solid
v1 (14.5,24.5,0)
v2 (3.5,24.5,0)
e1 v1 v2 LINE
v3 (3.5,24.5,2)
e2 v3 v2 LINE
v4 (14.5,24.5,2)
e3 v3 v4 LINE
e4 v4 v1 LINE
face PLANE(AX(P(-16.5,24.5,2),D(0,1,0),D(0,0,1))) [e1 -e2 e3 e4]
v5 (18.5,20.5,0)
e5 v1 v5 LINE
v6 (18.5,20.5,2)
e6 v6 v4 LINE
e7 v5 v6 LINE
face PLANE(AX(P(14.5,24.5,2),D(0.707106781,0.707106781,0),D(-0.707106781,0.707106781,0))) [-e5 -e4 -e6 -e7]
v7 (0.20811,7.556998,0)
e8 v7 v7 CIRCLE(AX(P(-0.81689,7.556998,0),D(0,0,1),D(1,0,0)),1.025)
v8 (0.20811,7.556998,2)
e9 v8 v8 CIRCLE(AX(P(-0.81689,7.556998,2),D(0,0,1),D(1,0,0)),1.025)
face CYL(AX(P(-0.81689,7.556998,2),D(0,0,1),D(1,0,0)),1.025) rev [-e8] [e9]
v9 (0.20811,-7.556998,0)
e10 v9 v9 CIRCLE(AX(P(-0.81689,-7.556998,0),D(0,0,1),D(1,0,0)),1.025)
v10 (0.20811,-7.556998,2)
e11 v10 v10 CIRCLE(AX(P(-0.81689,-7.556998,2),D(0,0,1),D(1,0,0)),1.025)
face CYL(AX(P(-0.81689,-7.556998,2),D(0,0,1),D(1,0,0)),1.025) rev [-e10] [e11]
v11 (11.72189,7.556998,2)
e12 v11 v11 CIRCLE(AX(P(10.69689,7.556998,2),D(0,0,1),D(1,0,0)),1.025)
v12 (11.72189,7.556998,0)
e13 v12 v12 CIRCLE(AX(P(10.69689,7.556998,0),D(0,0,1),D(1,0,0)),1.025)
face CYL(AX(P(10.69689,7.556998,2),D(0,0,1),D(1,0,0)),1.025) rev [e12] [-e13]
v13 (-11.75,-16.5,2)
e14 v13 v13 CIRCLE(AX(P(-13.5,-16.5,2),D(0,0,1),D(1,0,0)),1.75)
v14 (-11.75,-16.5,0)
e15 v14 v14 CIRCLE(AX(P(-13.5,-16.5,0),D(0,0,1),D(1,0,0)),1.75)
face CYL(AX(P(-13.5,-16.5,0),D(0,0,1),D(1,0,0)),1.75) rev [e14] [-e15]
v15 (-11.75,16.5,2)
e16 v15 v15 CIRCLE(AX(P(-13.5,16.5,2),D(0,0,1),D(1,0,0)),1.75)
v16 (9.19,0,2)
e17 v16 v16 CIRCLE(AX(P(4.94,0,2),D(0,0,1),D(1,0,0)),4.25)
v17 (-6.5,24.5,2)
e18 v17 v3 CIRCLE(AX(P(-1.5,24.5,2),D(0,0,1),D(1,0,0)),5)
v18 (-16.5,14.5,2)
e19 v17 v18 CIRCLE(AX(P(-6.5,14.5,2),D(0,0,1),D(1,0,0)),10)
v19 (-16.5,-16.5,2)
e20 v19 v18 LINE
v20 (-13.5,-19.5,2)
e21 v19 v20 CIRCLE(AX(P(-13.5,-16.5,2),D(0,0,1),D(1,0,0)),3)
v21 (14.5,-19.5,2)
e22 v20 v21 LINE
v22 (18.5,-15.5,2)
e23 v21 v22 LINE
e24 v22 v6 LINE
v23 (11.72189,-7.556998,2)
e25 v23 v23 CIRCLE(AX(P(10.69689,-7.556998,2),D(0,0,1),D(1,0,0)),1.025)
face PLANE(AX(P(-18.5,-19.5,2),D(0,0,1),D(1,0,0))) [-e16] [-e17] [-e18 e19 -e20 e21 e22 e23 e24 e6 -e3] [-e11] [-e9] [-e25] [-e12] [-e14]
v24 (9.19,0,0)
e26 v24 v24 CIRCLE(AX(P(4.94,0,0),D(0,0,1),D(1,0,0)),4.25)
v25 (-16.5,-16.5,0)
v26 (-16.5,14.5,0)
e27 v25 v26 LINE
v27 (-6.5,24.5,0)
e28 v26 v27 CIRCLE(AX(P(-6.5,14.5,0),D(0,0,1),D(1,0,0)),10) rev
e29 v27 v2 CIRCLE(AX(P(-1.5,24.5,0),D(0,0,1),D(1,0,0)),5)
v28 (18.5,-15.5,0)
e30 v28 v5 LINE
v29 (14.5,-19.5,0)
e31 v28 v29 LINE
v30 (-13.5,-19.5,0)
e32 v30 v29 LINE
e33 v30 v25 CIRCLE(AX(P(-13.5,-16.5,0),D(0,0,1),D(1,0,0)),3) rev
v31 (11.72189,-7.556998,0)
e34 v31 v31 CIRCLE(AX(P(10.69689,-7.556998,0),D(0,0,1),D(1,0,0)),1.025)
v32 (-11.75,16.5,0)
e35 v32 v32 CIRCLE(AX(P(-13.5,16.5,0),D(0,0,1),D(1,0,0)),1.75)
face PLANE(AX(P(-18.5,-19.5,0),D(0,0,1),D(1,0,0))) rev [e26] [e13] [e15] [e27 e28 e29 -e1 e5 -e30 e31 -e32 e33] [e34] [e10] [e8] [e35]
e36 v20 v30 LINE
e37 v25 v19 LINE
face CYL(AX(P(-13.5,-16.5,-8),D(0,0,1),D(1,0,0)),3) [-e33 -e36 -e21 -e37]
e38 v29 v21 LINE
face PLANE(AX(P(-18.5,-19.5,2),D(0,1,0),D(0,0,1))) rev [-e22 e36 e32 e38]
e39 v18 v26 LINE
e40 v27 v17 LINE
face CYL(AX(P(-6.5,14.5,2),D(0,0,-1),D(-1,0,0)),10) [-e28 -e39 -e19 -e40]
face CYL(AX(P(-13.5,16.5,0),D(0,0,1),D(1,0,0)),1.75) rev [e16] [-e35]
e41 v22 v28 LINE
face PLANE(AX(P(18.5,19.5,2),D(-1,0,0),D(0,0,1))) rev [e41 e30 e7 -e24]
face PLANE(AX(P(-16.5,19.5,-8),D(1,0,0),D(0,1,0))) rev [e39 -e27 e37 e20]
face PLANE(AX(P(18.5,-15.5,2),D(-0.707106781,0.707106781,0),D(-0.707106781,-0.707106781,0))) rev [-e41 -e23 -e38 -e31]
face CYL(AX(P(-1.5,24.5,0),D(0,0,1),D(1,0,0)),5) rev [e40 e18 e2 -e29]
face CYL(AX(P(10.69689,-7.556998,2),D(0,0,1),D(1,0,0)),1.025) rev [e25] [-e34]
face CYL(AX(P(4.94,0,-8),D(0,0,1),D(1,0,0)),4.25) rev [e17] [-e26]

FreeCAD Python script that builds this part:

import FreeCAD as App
import Part
import Sketcher
Q = App.Units.Quantity


def edges_at(feature, points):
    """Names of the edges that pass closest to the given points."""
    edges = feature.Shape.Edges
    near = lambda p: min(range(len(edges)), key=lambda i: edges[i].distToShape(Part.Vertex(*p))[0])
    return sorted({f"Edge{near(p) + 1}" for p in points})

doc = App.newDocument("Part")
params = doc.addObject("Spreadsheet::Sheet", "Params")
for row, (alias, value) in enumerate([
    ("sketch1_width", "37 mm"),
    ("sketch1_height", "39 mm"),
    ("pad1_length", "2 mm"),
    ("sketch2_diameter", "3.5 mm"),
    ("pocket1_length", "2 mm"),
    ("chamfer_size", "1 mm"),
    ("sketch3_diameter", "8.5 mm"),
    ("pocket2_length", "10 mm"),
    ("sketch4_width", "2 mm"),
    ("sketch4_height", "39 mm"),
    ("pocket3_length", "10 mm"),
    ("fillet_radius", "3 mm"),
    ("sketch5_diameter", "2.05 mm"),
    ("hole_diameter", "2.05 mm"),
    ("hole_depth", "7.25 mm"),
    ("chamfer2_size", "4 mm"),
    ("sketch6_width", "35 mm"),
    ("sketch6_height", "2 mm"),
    ("pad2_length", "5 mm"),
    ("chamfer3_size", "4 mm"),
    ("fillet2_radius", "10 mm"),
    ("sketch7_diameter", "10 mm"),
], start=1):
    params.set(f"A{row}", alias)
    params.set(f"B{row}", "=" + value)
    params.setAlias(f"B{row}", alias)

body = doc.addObject("PartDesign::Body", "Body")

# Sketch on XY plane
sketch1 = doc.addObject("Sketcher::SketchObject", "Sketch")
body.addObject(sketch1)
sketch1.AttachmentSupport = (doc.XY_Plane, [""])
sketch1.MapMode = "FlatFace"
sketch1.addGeometry([
    Part.LineSegment(App.Vector(-18, 20, 0), App.Vector(-18, -20, 0)),
    Part.LineSegment(App.Vector(-18, -20, 0), App.Vector(18, -20, 0)),
    Part.LineSegment(App.Vector(18, -20, 0), App.Vector(18, 20, 0)),
    Part.LineSegment(App.Vector(18, 20, 0), App.Vector(-18, 20, 0)),
], False)
sketch1.addConstraint([
    Sketcher.Constraint("Coincident", 0, 2, 1, 1),
    Sketcher.Constraint("Coincident", 1, 2, 2, 1),
    Sketcher.Constraint("Coincident", 2, 2, 3, 1),
    Sketcher.Constraint("Coincident", 3, 2, 0, 1),
    Sketcher.Constraint("Vertical", 0),
    Sketcher.Constraint("Horizontal", 1),
    Sketcher.Constraint("Vertical", 2),
    Sketcher.Constraint("Horizontal", 3),
    Sketcher.Constraint("Symmetric", 0, 2, 2, 2, -1, 1),
    Sketcher.Constraint("DistanceX", 1, 1, 1, 2, Q("37 mm")),
    Sketcher.Constraint("DistanceY", 0, 2, 0, 1, Q("39 mm")),
])
sketch1.setExpression("Constraints[9]", "Params.sketch1_width")
sketch1.setExpression("Constraints[10]", "Params.sketch1_height")
pad1 = doc.addObject("PartDesign::Pad", "Pad")
body.addObject(pad1)
pad1.Profile = sketch1
pad1.setExpression("Length", "Params.pad1_length")

# Sketch on XY plane
sketch2 = doc.addObject("Sketcher::SketchObject", "Sketch001")
body.addObject(sketch2)
sketch2.AttachmentSupport = (doc.XY_Plane, [""])
sketch2.MapMode = "FlatFace"
sketch2.AttachmentOffset = App.Placement(App.Vector(0, 0, 2), App.Rotation())
sketch2.addGeometry([
    Part.Circle(App.Vector(-13.5, 16.5, 0), App.Vector(0, 0, 1), 1.8),
    Part.Circle(App.Vector(-13.5, -16.5, 0), App.Vector(0, 0, 1), 1.8),
], False)
sketch2.addConstraint([
    Sketcher.Constraint("Equal", 0, 1),
    Sketcher.Constraint("Symmetric", 0, 3, 1, 3, -1),
    Sketcher.Constraint("Diameter", 0, Q("3.5 mm")),
    Sketcher.Constraint("DistanceY", 1, 3, 0, 3, Q("33 mm")),
    Sketcher.Constraint("DistanceX", 0, 3, -1, 1, Q("13.5 mm")),
])
sketch2.setExpression("Constraints[2]", "Params.sketch2_diameter")
pocket1 = doc.addObject("PartDesign::Pocket", "Pocket")
body.addObject(pocket1)
pocket1.Profile = sketch2
pocket1.setExpression("Length", "Params.pocket1_length")
doc.recompute()

chamfer = doc.addObject("PartDesign::Chamfer", "Chamfer")
body.addObject(chamfer)
chamfer.Base = (pocket1, edges_at(pocket1, [(-18.5, 19.5, 1), (-18.5, -19.5, 1)]))
chamfer.setExpression("Size", "Params.chamfer_size")

# Sketch on XY plane
sketch3 = doc.addObject("Sketcher::SketchObject", "Sketch002")
body.addObject(sketch3)
sketch3.AttachmentSupport = (doc.XY_Plane, [""])
sketch3.MapMode = "FlatFace"
sketch3.AttachmentOffset = App.Placement(App.Vector(0, 0, 2), App.Rotation())
sketch3.addGeometry(Part.Circle(App.Vector(4.9, 0, 0), App.Vector(0, 0, 1), 4.2), False)
sketch3.addConstraint([
    Sketcher.Constraint("PointOnObject", 0, 3, -1),
    Sketcher.Constraint("Diameter", 0, Q("8.5 mm")),
    Sketcher.Constraint("DistanceX", -1, 1, 0, 3, Q("4.94 mm")),
])
sketch3.setExpression("Constraints[1]", "Params.sketch3_diameter")
pocket2 = doc.addObject("PartDesign::Pocket", "Pocket001")
body.addObject(pocket2)
pocket2.Profile = sketch3
pocket2.setExpression("Length", "Params.pocket2_length")

# Sketch on XY plane
sketch4 = doc.addObject("Sketcher::SketchObject", "Sketch003")
body.addObject(sketch4)
sketch4.AttachmentSupport = (doc.XY_Plane, [""])
sketch4.MapMode = "FlatFace"
sketch4.AttachmentOffset = App.Placement(App.Vector(0, 0, 2), App.Rotation())
sketch4.addGeometry([
    Part.LineSegment(App.Vector(-18.5, 19.5, 0), App.Vector(-18.5, -19.5, 0)),
    Part.LineSegment(App.Vector(-18.5, -19.5, 0), App.Vector(-16.5, -19.5, 0)),
    Part.LineSegment(App.Vector(-16.5, -19.5, 0), App.Vector(-16.5, 19.5, 0)),
    Part.LineSegment(App.Vector(-16.5, 19.5, 0), App.Vector(-18.5, 19.5, 0)),
], False)
sketch4.addConstraint([
    Sketcher.Constraint("Coincident", 0, 2, 1, 1),
    Sketcher.Constraint("Coincident", 1, 2, 2, 1),
    Sketcher.Constraint("Coincident", 2, 2, 3, 1),
    Sketcher.Constraint("Coincident", 3, 2, 0, 1),
    Sketcher.Constraint("Vertical", 0),
    Sketcher.Constraint("Horizontal", 1),
    Sketcher.Constraint("Vertical", 2),
    Sketcher.Constraint("Horizontal", 3),
    Sketcher.Constraint("DistanceX", 1, 1, 1, 2, Q("2 mm")),
    Sketcher.Constraint("DistanceY", 0, 2, 0, 1, Q("39 mm")),
    Sketcher.Constraint("DistanceX", 0, 2, -1, 1, Q("18.5 mm")),
    Sketcher.Constraint("DistanceY", 0, 2, -1, 1, Q("19.5 mm")),
])
sketch4.setExpression("Constraints[8]", "Params.sketch4_width")
sketch4.setExpression("Constraints[9]", "Params.sketch4_height")
pocket3 = doc.addObject("PartDesign::Pocket", "Pocket002")
body.addObject(pocket3)
pocket3.Profile = sketch4
pocket3.setExpression("Length", "Params.pocket3_length")
doc.recompute()

fillet = doc.addObject("PartDesign::Fillet", "Fillet")
body.addObject(fillet)
fillet.Base = (pocket3, edges_at(pocket3, [(-16.5, -19.5, 1)]))
fillet.setExpression("Radius", "Params.fillet_radius")

# Sketch on XY plane
sketch5 = doc.addObject("Sketcher::SketchObject", "Sketch004")
body.addObject(sketch5)
sketch5.AttachmentSupport = (doc.XY_Plane, [""])
sketch5.MapMode = "FlatFace"
sketch5.AttachmentOffset = App.Placement(App.Vector(0, 0, 2), App.Rotation())
sketch5.addGeometry([
    Part.Circle(App.Vector(-0.8, -7.6, 0), App.Vector(0, 0, 1), 1),
    Part.Circle(App.Vector(10.7, 7.6, 0), App.Vector(0, 0, 1), 1),
    Part.Circle(App.Vector(-0.8, 7.6, 0), App.Vector(0, 0, 1), 1),
    Part.Circle(App.Vector(10.7, -7.6, 0), App.Vector(0, 0, 1), 1),
], False)
sketch5.addConstraint([
    Sketcher.Constraint("Equal", 0, 1),
    Sketcher.Constraint("Equal", 1, 2),
    Sketcher.Constraint("Equal", 2, 3),
    Sketcher.Constraint("Symmetric", 0, 3, 2, 3, -1),
    Sketcher.Constraint("Symmetric", 1, 3, 3, 3, -1),
    Sketcher.Constraint("Horizontal", 1, 3, 2, 3),
    Sketcher.Constraint("Diameter", 0, Q("2.05 mm")),
    Sketcher.Constraint("DistanceY", 0, 3, -1, 1, Q("7.556998 mm")),
    Sketcher.Constraint("DistanceX", 0, 3, -1, 1, Q("0.81689 mm")),
    Sketcher.Constraint("DistanceX", -1, 1, 1, 3, Q("10.69689 mm")),
])
sketch5.setExpression("Constraints[6]", "Params.sketch5_diameter")
doc.recompute()
hole = doc.addObject("PartDesign::Hole", "Hole")
body.addObject(hole)
hole.Profile = sketch5
hole.ThreadType = "None"
hole.setExpression("Diameter", "Params.hole_diameter")
hole.DepthType = "Dimension"
hole.setExpression("Depth", "Params.hole_depth")
hole.DrillPoint = "Angled"
hole.DrillPointAngle = 118
doc.recompute()

chamfer2 = doc.addObject("PartDesign::Chamfer", "Chamfer001")
body.addObject(chamfer2)
chamfer2.Base = (hole, edges_at(hole, [(18.5, -19.5, 1)]))
chamfer2.setExpression("Size", "Params.chamfer2_size")

# Sketch on XZ plane
sketch6 = doc.addObject("Sketcher::SketchObject", "Sketch005")
body.addObject(sketch6)
sketch6.AttachmentSupport = (doc.XZ_Plane, [""])
sketch6.MapMode = "FlatFace"
sketch6.AttachmentOffset = App.Placement(App.Vector(0, 0, -19.5), App.Rotation())
sketch6.addGeometry([
    Part.LineSegment(App.Vector(-16.5, 0, 0), App.Vector(-16.5, 2, 0)),
    Part.LineSegment(App.Vector(-16.5, 2, 0), App.Vector(18.5, 2, 0)),
    Part.LineSegment(App.Vector(18.5, 2, 0), App.Vector(18.5, 0, 0)),
    Part.LineSegment(App.Vector(18.5, 0, 0), App.Vector(-16.5, 0, 0)),
], False)
sketch6.addConstraint([
    Sketcher.Constraint("Coincident", 0, 2, 1, 1),
    Sketcher.Constraint("Coincident", 1, 2, 2, 1),
    Sketcher.Constraint("Coincident", 2, 2, 3, 1),
    Sketcher.Constraint("Coincident", 3, 2, 0, 1),
    Sketcher.Constraint("Vertical", 0),
    Sketcher.Constraint("Horizontal", 1),
    Sketcher.Constraint("Vertical", 2),
    Sketcher.Constraint("Horizontal", 3),
    Sketcher.Constraint("PointOnObject", 2, 2, -1),
    Sketcher.Constraint("DistanceX", 1, 1, 1, 2, Q("35 mm")),
    Sketcher.Constraint("DistanceY", 0, 1, 0, 2, Q("2 mm")),
    Sketcher.Constraint("DistanceX", 0, 2, -1, 1, Q("16.5 mm")),
])
sketch6.setExpression("Constraints[9]", "Params.sketch6_width")
sketch6.setExpression("Constraints[10]", "Params.sketch6_height")
pad2 = doc.addObject("PartDesign::Pad", "Pad001")
body.addObject(pad2)
pad2.Profile = sketch6
pad2.setExpression("Length", "Params.pad2_length")
pad2.Reversed = True
doc.recompute()

chamfer3 = doc.addObject("PartDesign::Chamfer", "Chamfer002")
body.addObject(chamfer3)
chamfer3.Base = (pad2, edges_at(pad2, [(18.5, 24.5, 1)]))
chamfer3.setExpression("Size", "Params.chamfer3_size")
doc.recompute()

fillet2 = doc.addObject("PartDesign::Fillet", "Fillet001")
body.addObject(fillet2)
fillet2.Base = (chamfer3, edges_at(chamfer3, [(-16.5, 24.5, 1)]))
fillet2.setExpression("Radius", "Params.fillet2_radius")

# Sketch on XY plane
sketch7 = doc.addObject("Sketcher::SketchObject", "Sketch006")
body.addObject(sketch7)
sketch7.AttachmentSupport = (doc.XY_Plane, [""])
sketch7.MapMode = "FlatFace"
sketch7.AttachmentOffset = App.Placement(App.Vector(0, 0, 2), App.Rotation())
sketch7.addGeometry(Part.Circle(App.Vector(-2, 24, 0), App.Vector(0, 0, 1), 5), False)
sketch7.addConstraint([
    Sketcher.Constraint("Diameter", 0, Q("10 mm")),
    Sketcher.Constraint("DistanceX", 0, 3, -1, 1, Q("1.5 mm")),
    Sketcher.Constraint("DistanceY", -1, 1, 0, 3, Q("24.5 mm")),
])
sketch7.setExpression("Constraints[0]", "Params.sketch7_diameter")
pocket4 = doc.addObject("PartDesign::Pocket", "Pocket003")
body.addObject(pocket4)
pocket4.Profile = sketch7
pocket4.Type = "ThroughAll"

doc.recompute()
